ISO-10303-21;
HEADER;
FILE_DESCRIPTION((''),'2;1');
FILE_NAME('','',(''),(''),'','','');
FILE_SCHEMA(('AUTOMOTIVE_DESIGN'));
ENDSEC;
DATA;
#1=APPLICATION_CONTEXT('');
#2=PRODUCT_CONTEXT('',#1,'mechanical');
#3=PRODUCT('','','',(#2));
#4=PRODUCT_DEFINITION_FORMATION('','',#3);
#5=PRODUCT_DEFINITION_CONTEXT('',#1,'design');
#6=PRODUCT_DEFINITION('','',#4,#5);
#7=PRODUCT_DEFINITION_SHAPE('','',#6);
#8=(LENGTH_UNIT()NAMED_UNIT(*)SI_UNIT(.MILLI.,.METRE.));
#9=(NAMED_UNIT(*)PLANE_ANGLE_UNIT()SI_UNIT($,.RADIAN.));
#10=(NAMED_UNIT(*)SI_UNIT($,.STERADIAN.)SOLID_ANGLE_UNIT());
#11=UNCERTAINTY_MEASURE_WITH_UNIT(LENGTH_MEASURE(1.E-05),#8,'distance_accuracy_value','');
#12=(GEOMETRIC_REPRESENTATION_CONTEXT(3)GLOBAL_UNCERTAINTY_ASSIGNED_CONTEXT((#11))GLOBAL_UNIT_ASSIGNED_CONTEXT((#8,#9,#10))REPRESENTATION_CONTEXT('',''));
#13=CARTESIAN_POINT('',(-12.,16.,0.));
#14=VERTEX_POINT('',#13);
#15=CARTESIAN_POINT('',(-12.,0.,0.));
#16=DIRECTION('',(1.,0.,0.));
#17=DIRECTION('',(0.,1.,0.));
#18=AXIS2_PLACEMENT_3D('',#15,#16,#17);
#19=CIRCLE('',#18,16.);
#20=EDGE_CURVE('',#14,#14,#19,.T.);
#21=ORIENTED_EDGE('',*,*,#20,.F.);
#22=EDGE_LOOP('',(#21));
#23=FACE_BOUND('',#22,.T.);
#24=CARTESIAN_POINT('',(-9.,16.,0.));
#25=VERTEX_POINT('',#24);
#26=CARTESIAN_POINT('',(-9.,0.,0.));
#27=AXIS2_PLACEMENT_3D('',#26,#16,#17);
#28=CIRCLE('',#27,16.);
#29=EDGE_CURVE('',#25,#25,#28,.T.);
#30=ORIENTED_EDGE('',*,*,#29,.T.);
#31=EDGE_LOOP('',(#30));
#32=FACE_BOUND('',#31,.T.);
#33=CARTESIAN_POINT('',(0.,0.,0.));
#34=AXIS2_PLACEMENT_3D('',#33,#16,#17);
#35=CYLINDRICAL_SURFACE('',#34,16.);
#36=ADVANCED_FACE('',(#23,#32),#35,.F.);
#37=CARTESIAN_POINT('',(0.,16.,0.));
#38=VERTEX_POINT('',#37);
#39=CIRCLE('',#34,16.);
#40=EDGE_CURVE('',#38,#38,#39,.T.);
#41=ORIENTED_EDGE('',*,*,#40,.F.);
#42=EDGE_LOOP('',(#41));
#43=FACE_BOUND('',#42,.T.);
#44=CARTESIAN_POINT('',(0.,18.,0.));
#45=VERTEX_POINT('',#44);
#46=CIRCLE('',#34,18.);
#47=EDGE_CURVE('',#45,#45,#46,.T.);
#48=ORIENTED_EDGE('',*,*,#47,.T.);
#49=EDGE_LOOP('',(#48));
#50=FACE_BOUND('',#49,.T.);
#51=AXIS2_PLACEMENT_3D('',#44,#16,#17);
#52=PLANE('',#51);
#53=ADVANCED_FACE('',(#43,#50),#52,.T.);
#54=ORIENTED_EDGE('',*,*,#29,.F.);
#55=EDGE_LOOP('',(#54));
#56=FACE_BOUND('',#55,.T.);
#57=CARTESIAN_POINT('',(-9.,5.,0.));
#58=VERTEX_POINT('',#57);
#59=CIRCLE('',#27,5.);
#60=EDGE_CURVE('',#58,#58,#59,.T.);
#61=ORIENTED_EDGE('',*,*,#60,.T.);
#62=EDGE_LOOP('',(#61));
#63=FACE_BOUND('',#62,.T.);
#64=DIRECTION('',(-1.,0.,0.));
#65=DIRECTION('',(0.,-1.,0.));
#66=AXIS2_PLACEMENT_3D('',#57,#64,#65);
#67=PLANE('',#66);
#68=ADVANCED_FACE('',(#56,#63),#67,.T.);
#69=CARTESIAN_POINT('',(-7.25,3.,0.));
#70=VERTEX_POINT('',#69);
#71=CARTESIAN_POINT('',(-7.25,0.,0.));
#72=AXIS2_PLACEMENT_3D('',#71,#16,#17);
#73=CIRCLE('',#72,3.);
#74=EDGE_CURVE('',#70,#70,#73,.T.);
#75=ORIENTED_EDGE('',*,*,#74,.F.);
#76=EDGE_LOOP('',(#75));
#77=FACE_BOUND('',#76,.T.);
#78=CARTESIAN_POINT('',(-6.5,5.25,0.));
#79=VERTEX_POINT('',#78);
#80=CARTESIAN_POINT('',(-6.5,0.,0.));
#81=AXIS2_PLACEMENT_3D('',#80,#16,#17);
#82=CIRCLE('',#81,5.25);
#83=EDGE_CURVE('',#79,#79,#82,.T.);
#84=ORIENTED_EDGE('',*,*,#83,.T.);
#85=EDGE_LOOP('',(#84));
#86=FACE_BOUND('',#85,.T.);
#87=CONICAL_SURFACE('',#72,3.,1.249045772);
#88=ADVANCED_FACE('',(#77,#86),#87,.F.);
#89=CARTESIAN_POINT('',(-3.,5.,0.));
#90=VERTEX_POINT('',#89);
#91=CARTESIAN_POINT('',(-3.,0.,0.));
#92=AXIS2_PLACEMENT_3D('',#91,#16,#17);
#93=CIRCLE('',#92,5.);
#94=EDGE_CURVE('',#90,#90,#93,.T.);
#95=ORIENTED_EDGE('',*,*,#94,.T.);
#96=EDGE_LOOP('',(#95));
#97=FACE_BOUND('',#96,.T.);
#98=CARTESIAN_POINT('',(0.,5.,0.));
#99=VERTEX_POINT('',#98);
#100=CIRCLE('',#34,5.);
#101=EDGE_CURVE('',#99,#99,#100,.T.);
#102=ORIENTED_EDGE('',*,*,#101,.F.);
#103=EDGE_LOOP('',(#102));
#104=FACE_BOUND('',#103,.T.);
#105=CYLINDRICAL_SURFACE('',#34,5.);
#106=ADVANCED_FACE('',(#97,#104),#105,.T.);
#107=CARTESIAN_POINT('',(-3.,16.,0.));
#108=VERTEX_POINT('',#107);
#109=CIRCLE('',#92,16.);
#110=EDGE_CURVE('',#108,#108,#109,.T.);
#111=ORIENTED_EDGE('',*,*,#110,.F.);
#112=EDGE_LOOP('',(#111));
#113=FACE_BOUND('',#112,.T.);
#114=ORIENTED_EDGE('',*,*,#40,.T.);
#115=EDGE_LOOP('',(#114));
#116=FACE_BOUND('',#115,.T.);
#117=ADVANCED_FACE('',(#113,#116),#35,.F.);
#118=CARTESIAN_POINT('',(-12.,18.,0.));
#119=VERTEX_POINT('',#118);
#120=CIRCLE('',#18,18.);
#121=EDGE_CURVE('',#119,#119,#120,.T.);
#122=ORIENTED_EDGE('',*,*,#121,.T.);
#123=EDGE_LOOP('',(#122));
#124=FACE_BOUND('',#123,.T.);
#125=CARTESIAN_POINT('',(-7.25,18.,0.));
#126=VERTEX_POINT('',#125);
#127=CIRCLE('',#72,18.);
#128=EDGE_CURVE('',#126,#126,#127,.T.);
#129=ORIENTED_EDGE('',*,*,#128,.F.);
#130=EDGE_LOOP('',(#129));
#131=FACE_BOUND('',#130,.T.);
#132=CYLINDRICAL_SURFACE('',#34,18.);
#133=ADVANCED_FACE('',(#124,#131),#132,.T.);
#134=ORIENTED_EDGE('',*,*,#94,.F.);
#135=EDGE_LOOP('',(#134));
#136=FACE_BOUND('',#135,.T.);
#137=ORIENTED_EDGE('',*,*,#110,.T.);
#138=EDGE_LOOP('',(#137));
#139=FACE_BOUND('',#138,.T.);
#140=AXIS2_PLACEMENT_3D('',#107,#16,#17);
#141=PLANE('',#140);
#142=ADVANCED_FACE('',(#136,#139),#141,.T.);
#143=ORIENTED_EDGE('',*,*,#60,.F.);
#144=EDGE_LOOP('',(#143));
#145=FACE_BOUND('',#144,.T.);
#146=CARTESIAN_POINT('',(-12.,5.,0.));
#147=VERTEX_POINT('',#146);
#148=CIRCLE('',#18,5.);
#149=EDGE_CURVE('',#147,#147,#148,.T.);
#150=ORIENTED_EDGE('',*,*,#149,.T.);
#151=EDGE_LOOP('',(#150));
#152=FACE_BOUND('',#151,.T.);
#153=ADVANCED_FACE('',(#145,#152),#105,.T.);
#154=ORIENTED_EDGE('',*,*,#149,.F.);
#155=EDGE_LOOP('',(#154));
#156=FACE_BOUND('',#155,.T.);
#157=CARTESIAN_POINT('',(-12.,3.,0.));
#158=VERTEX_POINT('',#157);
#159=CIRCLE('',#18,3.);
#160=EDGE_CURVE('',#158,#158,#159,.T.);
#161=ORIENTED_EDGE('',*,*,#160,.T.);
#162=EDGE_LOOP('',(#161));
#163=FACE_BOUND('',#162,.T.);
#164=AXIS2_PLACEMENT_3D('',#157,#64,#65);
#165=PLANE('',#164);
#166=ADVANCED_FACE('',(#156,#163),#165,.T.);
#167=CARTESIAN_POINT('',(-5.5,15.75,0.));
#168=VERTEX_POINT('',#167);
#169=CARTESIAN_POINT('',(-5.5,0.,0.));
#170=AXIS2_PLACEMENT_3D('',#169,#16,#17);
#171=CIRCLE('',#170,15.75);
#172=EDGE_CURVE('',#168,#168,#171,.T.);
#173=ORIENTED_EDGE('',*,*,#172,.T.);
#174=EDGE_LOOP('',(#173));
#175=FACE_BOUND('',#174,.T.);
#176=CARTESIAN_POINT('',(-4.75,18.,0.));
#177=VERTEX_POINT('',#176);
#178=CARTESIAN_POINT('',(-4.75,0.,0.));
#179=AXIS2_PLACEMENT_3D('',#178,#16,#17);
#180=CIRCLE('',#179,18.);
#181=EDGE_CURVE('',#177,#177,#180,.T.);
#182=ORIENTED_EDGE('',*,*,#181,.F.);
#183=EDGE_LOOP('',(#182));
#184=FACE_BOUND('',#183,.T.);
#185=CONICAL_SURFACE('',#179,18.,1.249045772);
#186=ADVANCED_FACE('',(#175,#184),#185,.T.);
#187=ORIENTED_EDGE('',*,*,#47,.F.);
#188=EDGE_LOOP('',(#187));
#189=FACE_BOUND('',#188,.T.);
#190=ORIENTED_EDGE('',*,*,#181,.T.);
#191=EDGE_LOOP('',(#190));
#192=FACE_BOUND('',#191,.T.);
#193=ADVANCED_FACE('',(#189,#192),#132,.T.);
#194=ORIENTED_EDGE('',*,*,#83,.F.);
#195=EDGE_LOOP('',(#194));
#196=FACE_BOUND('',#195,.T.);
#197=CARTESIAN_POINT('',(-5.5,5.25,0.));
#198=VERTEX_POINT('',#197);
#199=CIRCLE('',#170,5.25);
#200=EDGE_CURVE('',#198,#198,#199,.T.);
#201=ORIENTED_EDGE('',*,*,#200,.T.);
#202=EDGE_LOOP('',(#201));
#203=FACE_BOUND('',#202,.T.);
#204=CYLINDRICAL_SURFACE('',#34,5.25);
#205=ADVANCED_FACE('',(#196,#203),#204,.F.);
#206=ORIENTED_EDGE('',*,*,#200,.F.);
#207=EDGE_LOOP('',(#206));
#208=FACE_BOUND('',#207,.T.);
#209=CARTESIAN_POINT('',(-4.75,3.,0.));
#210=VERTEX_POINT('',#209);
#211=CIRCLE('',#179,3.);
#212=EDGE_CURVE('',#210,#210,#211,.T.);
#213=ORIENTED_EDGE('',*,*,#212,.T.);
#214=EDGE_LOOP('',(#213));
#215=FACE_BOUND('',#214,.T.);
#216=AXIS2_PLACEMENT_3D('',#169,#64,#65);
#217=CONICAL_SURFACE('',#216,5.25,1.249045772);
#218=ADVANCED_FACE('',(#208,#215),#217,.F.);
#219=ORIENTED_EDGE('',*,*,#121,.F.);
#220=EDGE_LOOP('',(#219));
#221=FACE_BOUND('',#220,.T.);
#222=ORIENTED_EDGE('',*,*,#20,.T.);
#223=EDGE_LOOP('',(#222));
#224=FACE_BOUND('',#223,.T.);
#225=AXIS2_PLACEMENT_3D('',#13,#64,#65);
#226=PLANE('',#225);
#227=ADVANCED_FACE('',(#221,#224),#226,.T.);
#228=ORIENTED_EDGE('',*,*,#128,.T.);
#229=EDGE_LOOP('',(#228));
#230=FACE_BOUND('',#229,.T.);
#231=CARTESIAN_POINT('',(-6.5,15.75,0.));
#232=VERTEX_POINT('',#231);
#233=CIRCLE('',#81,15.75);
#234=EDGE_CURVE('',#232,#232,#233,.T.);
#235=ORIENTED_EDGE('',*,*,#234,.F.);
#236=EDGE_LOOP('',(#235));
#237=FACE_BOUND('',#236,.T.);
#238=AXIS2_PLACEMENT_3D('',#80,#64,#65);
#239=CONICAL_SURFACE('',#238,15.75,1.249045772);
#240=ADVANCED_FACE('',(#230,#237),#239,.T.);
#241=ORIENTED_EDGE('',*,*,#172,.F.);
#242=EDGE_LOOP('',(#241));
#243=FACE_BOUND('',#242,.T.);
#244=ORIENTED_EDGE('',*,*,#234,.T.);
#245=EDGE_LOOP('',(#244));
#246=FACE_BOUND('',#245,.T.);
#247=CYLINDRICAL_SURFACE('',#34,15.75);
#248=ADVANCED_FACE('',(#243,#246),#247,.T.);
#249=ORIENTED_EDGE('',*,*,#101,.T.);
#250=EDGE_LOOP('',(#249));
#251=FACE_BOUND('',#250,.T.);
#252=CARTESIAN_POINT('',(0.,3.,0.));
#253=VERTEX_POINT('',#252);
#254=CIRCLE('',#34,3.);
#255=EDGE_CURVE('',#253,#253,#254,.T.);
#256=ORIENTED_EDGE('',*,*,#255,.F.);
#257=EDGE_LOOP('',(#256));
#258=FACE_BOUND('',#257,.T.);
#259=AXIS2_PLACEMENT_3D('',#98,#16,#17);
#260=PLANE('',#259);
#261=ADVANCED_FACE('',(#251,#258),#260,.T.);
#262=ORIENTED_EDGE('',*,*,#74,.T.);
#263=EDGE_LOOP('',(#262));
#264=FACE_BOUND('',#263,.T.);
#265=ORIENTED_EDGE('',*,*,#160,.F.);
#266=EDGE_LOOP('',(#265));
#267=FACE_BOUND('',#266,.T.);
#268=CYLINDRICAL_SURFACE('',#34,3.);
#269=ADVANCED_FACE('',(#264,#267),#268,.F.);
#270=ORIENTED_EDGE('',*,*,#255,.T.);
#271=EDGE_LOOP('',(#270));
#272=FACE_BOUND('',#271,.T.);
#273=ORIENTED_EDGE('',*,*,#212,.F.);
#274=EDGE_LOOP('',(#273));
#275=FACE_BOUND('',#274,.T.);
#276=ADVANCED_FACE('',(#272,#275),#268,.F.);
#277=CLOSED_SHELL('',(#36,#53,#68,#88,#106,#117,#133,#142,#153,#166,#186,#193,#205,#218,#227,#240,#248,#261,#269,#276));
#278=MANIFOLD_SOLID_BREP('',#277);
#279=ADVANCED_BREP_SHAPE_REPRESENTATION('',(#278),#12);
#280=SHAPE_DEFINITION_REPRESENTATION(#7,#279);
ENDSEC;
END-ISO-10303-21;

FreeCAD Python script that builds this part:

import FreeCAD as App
import Part
import Sketcher
Q = App.Units.Quantity


def add_polygon(sketch, points):
    """Adds a closed chain of lines whose ends are joined by coincident constraints."""
    first, n = sketch.GeometryCount, len(points)
    for a, b in zip(points, points[1:] + points[:1]):
        sketch.addGeometry(Part.LineSegment(App.Vector(*a, 0), App.Vector(*b, 0)), False)
    for i in range(n):
        sketch.addConstraint(Sketcher.Constraint("Coincident", first + i, 2, first + (i + 1) % n, 1))

doc = App.newDocument("Part")
body = doc.addObject("PartDesign::Body", "Body")

sketch1 = body.newObject("Sketcher::SketchObject", "Sketch")
sketch1.AttachmentSupport = (doc.getObject("XY_Plane"), [""])
sketch1.MapMode = "FlatFace"
add_polygon(sketch1, [(-4.8, 3), (0, 3), (0, 5), (-3, 5), (-3, 16), (0, 16), (0, 18), (-4.8, 18), (-5.5, 15.8), (-6.5, 15.8), (-7.2, 18), (-12, 18), (-12, 16), (-9, 16), (-9, 5), (-12, 5), (-12, 3), (-7.2, 3), (-6.5, 5.2), (-5.5, 5.2)])
sketch1.addConstraint([
    Sketcher.Constraint("Horizontal", 0),
    Sketcher.Constraint("Vertical", 1),
    Sketcher.Constraint("Horizontal", 2),
    Sketcher.Constraint("Vertical", 3),
    Sketcher.Constraint("Horizontal", 4),
    Sketcher.Constraint("Vertical", 5),
    Sketcher.Constraint("Horizontal", 6),
    Sketcher.Constraint("Horizontal", 8),
    Sketcher.Constraint("Horizontal", 10),
    Sketcher.Constraint("Vertical", 11),
    Sketcher.Constraint("Horizontal", 12),
    Sketcher.Constraint("Vertical", 13),
    Sketcher.Constraint("Horizontal", 14),
    Sketcher.Constraint("Vertical", 15),
    Sketcher.Constraint("Horizontal", 16),
    Sketcher.Constraint("Horizontal", 18),
    Sketcher.Constraint("PointOnObject", 0, 2, -2),
    Sketcher.Constraint("PointOnObject", 4, 2, -2),
    Sketcher.Constraint("Parallel", 7, 17),
    Sketcher.Constraint("Parallel", 9, 19),
    Sketcher.Constraint("Horizontal", 6, 2, 9, 2),
    Sketcher.Constraint("Horizontal", 4, 2, 11, 2),
    Sketcher.Constraint("Horizontal", 2, 2, 13, 2),
    Sketcher.Constraint("Horizontal", 0, 2, 15, 2),
    Sketcher.Constraint("Vertical", 11, 2, 14, 2),
    Sketcher.Constraint("Vertical", 9, 2, 16, 2),
    Sketcher.Constraint("Vertical", 8, 2, 17, 2),
    Sketcher.Constraint("Vertical", 7, 2, 18, 2),
    Sketcher.Constraint("Vertical", 6, 2, 19, 2),
    Sketcher.Constraint("Equal", 6, 10),
    Sketcher.Constraint("Equal", 4, 12),
    Sketcher.Constraint("Equal", 1, 5),
    Sketcher.Constraint("DistanceX", 2, 2, 2, 1, Q("3 mm")),
    Sketcher.Constraint("DistanceX", 8, 2, 8, 1, Q("1 mm")),
    Sketcher.Constraint("DistanceY", 1, 1, 1, 2, Q("2 mm")),
    Sketcher.Constraint("DistanceY", 3, 1, 3, 2, Q("11 mm")),
    Sketcher.Constraint("DistanceY", -1, 1, 0, 2, Q("3 mm")),
    Sketcher.Constraint("DistanceX", 10, 2, -1, 1, Q("12 mm")),
    Sketcher.Constraint("DistanceX", 0, 1, 0, 2, Q("4.75 mm")),
    Sketcher.Constraint("DistanceY", -1, 1, 7, 2, Q("15.75 mm")),
])
revolution = body.newObject("PartDesign::Revolution", "Revolution")
revolution.Profile = sketch1
revolution.ReferenceAxis = (sketch1, ["H_Axis"])
revolution.Angle = 360

doc.recompute()
